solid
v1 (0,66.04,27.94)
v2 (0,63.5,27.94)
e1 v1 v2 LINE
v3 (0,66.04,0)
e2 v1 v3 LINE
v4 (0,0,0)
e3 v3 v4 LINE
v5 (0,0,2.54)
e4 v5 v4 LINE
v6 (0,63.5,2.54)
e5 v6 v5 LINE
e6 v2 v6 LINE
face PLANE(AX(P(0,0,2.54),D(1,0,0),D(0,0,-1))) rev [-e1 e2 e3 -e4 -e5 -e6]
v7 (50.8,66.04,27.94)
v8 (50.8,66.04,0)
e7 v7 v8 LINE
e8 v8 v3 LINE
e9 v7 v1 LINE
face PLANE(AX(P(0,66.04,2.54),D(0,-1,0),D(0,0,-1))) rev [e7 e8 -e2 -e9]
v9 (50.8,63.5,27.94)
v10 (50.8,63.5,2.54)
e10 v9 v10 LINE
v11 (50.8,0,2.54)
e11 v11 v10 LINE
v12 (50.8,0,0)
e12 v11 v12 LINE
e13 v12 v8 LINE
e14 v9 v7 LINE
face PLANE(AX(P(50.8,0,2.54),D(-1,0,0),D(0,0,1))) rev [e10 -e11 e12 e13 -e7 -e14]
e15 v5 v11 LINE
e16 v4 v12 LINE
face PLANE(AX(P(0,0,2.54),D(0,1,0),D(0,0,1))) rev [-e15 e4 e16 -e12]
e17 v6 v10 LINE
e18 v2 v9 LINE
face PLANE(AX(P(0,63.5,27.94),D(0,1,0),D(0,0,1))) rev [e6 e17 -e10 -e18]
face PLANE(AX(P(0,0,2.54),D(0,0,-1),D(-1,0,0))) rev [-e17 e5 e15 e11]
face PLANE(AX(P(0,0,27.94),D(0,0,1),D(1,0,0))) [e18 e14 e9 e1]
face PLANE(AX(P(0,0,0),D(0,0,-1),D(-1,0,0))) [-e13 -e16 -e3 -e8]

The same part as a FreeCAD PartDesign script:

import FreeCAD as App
import Part
import Sketcher
from FreeCAD import Vector
Q = App.Units.Quantity

doc = App.newDocument("Part")
body = doc.addObject("PartDesign::Body", "Body")

# Sketch on XY plane
sketch1 = doc.addObject("Sketcher::SketchObject", "Sketch")
body.addObject(sketch1)
sketch1.AttachmentSupport = (doc.XY_Plane, [""])
sketch1.MapMode = "FlatFace"
sketch1.addGeometry(Part.LineSegment(Vector(0, 66, 0), Vector(0, 0, 0)), False)
sketch1.addGeometry(Part.LineSegment(Vector(0, 0, 0), Vector(51, 0, 0)), False)
sketch1.addGeometry(Part.LineSegment(Vector(51, 0, 0), Vector(51, 66, 0)), False)
sketch1.addGeometry(Part.LineSegment(Vector(51, 66, 0), Vector(0, 66, 0)), False)
sketch1.addConstraint(Sketcher.Constraint("Coincident", 0, 2, 1, 1))
sketch1.addConstraint(Sketcher.Constraint("Coincident", 1, 2, 2, 1))
sketch1.addConstraint(Sketcher.Constraint("Coincident", 2, 2, 3, 1))
sketch1.addConstraint(Sketcher.Constraint("Coincident", 3, 2, 0, 1))
sketch1.addConstraint(Sketcher.Constraint("Vertical", 0))
sketch1.addConstraint(Sketcher.Constraint("Horizontal", 1))
sketch1.addConstraint(Sketcher.Constraint("Vertical", 2))
sketch1.addConstraint(Sketcher.Constraint("Horizontal", 3))
sketch1.addConstraint(Sketcher.Constraint("Coincident", 0, 2, -1, 1))
sketch1.addConstraint(Sketcher.Constraint("DistanceX", 1, 1, 1, 2, Q("2 in")))
sketch1.addConstraint(Sketcher.Constraint("DistanceY", 0, 2, 0, 1, Q("2.6 in")))
pad1 = doc.addObject("PartDesign::Pad", "Pad")
body.addObject(pad1)
pad1.Profile = sketch1
pad1.Length = Q("0.1 in")

# Sketch on XY plane
sketch2 = doc.addObject("Sketcher::SketchObject", "Sketch001")
body.addObject(sketch2)
sketch2.AttachmentSupport = (doc.XY_Plane, [""])
sketch2.MapMode = "FlatFace"
sketch2.AttachmentOffset = App.Placement(Vector(0, 0, 0.1 * 25.4), App.Rotation())
sketch2.addGeometry(Part.LineSegment(Vector(0, 66, 0), Vector(0, 63.5, 0)), False)
sketch2.addGeometry(Part.LineSegment(Vector(0, 63.5, 0), Vector(50.8, 63.5, 0)), False)
sketch2.addGeometry(Part.LineSegment(Vector(50.8, 63.5, 0), Vector(50.8, 66, 0)), False)
sketch2.addGeometry(Part.LineSegment(Vector(50.8, 66, 0), Vector(0, 66, 0)), False)
sketch2.addConstraint(Sketcher.Constraint("Coincident", 0, 2, 1, 1))
sketch2.addConstraint(Sketcher.Constraint("Coincident", 1, 2, 2, 1))
sketch2.addConstraint(Sketcher.Constraint("Coincident", 2, 2, 3, 1))
sketch2.addConstraint(Sketcher.Constraint("Coincident", 3, 2, 0, 1))
sketch2.addConstraint(Sketcher.Constraint("Vertical", 0))
sketch2.addConstraint(Sketcher.Constraint("Horizontal", 1))
sketch2.addConstraint(Sketcher.Constraint("Vertical", 2))
sketch2.addConstraint(Sketcher.Constraint("Horizontal", 3))
sketch2.addConstraint(Sketcher.Constraint("PointOnObject", 0, 2, -2))
sketch2.addConstraint(Sketcher.Constraint("DistanceX", 1, 1, 1, 2, Q("2 in")))
sketch2.addConstraint(Sketcher.Constraint("DistanceY", 0, 2, 0, 1, Q("0.1 in")))
sketch2.addConstraint(Sketcher.Constraint("DistanceY", -1, 1, 0, 2, Q("2.5 in")))
pad2 = doc.addObject("PartDesign::Pad", "Pad001")
body.addObject(pad2)
pad2.Profile = sketch2
pad2.Length = Q("1 in")

doc.recompute()
